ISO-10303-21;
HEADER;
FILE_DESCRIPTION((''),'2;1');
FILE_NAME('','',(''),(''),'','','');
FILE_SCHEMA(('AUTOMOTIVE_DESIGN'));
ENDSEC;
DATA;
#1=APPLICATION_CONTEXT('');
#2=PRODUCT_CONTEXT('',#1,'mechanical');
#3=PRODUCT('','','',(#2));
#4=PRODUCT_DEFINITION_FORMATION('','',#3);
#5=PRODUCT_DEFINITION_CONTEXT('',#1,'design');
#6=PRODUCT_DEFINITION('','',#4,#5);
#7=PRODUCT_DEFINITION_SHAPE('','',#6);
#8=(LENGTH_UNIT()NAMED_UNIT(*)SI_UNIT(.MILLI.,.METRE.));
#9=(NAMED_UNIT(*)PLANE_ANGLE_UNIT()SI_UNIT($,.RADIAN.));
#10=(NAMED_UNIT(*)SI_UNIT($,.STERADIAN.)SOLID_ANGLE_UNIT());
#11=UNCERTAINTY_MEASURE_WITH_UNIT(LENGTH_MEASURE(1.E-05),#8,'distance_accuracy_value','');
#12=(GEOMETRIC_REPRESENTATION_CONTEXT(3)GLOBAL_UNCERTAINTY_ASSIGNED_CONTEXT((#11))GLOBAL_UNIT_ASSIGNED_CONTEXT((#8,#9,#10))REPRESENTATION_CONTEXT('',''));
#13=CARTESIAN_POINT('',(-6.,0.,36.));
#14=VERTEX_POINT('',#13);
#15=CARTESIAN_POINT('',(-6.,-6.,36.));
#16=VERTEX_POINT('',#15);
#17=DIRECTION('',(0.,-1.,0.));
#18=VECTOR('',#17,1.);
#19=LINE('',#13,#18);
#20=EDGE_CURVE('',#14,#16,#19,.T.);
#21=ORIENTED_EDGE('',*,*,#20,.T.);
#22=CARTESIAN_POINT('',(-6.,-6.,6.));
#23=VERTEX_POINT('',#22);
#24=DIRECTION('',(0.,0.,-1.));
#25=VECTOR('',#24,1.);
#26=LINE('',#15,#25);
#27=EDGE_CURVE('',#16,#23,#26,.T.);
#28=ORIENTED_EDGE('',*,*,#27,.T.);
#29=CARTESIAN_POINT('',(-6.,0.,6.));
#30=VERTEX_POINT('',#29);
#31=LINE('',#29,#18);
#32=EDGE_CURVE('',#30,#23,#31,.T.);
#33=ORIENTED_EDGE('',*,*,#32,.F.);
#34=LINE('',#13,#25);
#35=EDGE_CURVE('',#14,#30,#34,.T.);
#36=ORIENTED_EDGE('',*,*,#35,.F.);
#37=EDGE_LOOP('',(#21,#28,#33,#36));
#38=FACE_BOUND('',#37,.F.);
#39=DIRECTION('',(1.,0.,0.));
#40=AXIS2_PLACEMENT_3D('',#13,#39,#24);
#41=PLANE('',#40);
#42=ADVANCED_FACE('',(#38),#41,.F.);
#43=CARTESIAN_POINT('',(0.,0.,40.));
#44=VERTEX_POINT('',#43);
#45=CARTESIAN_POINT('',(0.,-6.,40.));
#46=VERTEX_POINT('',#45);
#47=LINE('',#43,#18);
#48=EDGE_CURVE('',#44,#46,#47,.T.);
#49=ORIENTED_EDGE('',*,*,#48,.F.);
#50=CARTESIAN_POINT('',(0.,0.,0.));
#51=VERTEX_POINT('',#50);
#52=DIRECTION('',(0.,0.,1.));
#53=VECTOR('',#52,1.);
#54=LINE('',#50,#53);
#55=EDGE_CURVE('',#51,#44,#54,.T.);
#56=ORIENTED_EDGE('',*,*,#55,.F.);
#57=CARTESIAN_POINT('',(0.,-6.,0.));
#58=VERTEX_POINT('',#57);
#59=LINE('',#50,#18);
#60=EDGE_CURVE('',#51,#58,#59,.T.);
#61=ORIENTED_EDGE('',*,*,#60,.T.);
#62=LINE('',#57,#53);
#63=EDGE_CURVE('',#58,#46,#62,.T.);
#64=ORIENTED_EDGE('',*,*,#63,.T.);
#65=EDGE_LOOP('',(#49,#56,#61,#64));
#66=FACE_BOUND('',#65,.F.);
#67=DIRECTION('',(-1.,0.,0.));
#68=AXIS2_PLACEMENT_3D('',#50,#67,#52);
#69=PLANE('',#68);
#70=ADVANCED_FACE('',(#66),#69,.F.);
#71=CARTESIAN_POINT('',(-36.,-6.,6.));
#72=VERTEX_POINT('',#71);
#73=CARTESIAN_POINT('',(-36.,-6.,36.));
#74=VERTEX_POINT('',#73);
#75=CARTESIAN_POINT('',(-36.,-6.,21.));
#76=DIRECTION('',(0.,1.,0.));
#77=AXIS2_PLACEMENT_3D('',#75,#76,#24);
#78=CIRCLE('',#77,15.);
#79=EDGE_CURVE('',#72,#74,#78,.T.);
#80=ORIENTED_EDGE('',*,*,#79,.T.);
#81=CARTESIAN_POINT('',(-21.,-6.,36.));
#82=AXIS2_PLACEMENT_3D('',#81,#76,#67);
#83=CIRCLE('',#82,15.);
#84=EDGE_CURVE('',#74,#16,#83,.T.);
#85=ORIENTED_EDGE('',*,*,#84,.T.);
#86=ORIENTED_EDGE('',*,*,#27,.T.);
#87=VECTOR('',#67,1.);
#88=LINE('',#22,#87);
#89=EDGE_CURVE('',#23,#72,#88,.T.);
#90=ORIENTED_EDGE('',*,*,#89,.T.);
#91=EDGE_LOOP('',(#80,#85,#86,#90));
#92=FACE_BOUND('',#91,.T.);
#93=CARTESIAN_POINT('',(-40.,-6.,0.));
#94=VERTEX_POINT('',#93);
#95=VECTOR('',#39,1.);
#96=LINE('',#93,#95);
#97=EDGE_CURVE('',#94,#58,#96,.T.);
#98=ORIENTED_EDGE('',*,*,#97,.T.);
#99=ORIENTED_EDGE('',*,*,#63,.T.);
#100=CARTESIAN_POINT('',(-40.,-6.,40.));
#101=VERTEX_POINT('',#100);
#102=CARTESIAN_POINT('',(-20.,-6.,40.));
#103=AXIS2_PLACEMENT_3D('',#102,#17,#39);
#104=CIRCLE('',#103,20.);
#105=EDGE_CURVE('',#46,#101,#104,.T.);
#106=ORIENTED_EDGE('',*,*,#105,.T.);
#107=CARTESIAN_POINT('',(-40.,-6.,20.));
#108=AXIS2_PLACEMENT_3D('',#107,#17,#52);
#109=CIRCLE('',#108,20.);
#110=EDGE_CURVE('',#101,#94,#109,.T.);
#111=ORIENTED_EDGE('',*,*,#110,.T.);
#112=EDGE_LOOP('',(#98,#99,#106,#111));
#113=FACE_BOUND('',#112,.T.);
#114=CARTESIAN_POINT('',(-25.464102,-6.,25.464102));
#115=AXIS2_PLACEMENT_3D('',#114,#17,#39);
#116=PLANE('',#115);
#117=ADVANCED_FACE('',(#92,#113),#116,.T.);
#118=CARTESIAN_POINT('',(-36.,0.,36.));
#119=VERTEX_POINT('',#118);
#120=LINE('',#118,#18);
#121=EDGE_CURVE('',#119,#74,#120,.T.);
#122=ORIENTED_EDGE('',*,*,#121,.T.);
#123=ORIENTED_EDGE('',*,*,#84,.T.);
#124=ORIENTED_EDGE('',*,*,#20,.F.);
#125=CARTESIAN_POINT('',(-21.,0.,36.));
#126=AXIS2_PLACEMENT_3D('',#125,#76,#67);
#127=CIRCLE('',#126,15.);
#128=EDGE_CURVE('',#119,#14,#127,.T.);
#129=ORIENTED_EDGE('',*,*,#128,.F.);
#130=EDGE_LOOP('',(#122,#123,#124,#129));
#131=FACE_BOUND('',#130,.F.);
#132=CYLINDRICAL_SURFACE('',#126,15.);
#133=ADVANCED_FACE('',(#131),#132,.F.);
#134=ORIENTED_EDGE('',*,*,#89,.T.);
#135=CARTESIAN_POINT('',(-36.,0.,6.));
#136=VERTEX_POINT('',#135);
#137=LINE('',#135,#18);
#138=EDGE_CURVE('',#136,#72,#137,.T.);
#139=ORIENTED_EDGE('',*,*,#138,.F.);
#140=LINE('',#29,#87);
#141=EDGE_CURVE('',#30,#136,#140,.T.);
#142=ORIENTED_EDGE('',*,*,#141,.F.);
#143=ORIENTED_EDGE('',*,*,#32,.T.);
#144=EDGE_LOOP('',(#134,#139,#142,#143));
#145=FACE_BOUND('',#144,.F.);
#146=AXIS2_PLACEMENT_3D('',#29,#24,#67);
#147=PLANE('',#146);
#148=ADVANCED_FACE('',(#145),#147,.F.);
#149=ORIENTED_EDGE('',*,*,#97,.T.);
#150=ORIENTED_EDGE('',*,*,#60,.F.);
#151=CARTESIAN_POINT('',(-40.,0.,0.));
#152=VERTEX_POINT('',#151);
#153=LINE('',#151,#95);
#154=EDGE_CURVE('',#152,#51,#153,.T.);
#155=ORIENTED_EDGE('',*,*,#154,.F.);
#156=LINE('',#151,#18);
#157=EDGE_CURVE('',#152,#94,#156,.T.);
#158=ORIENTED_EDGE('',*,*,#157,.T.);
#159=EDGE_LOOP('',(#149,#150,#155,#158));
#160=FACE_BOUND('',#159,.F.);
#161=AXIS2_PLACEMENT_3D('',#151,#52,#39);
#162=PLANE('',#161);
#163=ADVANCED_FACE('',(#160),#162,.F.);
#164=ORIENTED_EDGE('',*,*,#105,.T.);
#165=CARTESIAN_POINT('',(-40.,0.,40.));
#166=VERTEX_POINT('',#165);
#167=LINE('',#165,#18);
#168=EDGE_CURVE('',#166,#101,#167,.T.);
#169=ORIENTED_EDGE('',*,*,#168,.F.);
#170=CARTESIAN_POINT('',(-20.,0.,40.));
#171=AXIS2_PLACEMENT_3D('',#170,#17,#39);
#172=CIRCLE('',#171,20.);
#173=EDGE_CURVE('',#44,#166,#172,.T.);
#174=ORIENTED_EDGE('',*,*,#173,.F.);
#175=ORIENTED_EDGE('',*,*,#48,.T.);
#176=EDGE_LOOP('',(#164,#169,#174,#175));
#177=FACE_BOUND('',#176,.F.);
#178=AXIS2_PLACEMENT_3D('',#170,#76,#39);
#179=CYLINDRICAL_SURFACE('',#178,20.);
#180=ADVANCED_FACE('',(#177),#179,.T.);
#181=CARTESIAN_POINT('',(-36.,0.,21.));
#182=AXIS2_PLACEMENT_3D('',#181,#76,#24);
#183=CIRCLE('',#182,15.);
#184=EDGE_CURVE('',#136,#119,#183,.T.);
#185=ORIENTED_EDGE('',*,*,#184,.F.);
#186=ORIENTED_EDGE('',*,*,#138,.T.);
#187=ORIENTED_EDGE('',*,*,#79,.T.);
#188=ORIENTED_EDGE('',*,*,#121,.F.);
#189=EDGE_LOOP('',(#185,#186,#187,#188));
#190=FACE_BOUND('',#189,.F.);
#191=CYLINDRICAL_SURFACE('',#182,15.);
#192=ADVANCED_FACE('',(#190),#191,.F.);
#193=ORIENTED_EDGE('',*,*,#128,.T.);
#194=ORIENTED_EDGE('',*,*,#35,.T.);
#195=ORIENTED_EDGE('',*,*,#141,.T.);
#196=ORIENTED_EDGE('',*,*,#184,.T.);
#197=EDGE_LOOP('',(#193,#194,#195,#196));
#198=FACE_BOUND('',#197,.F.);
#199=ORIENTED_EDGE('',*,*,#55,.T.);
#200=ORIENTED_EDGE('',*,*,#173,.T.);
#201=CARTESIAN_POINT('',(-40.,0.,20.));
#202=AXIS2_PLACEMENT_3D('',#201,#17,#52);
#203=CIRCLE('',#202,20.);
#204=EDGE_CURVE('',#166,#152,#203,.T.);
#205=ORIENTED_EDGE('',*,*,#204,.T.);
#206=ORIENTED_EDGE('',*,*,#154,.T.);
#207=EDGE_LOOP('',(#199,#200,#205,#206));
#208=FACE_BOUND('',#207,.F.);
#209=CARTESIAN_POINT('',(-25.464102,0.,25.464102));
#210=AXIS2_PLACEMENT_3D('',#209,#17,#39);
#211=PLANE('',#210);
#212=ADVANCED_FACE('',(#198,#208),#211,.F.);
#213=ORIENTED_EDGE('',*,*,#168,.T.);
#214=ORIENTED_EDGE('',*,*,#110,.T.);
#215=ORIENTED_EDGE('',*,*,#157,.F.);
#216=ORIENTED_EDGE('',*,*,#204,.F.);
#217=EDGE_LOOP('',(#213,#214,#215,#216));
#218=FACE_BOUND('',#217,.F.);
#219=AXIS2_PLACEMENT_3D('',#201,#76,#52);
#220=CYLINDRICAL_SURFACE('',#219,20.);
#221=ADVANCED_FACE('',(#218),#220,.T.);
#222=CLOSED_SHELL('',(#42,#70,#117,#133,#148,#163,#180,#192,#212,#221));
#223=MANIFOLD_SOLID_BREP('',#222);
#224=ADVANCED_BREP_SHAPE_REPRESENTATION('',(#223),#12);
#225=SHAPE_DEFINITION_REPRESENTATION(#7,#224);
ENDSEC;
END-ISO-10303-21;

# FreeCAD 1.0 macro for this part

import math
import FreeCAD as App
import Part
import Sketcher
from FreeCAD import Vector

doc = App.newDocument("Part")
body = doc.addObject("PartDesign::Body", "Body")

sketch1 = body.newObject("Sketcher::SketchObject", "Sketch")
sketch1.AttachmentSupport = (doc.getObject("XZ_Plane"), [""])
sketch1.MapMode = "FlatFace"
sketch1.addGeometry([
    Part.LineSegment(Vector(-40, 0, 0), Vector(0, 0, 0)),
    Part.LineSegment(Vector(0, 0, 0), Vector(0, 40, 0)),
    Part.ArcOfCircle(Part.Circle(Vector(-20, 40, 0), Vector(0, 0, 1), 20), math.radians(0), math.radians(180)),
    Part.ArcOfCircle(Part.Circle(Vector(-40, 20, 0), Vector(0, 0, 1), 20), math.radians(90), math.radians(270)),
    Part.LineSegment(Vector(-6, 36, 0), Vector(-6, 6, 0)),
    Part.LineSegment(Vector(-6, 6, 0), Vector(-36, 6, 0)),
    Part.ArcOfCircle(Part.Circle(Vector(-36, 21, 0), Vector(0, 0, 1), 15), math.radians(90), math.radians(270)),
    Part.ArcOfCircle(Part.Circle(Vector(-21, 36, 0), Vector(0, 0, 1), 15), math.radians(0), math.radians(180)),
], False)
sketch1.addConstraint([
    Sketcher.Constraint("Coincident", 0, 2, 1, 1),
    Sketcher.Constraint("Tangent", 1, 2, 2, 1),
    Sketcher.Constraint("Coincident", 2, 2, 3, 1),
    Sketcher.Constraint("Tangent", 3, 2, 0, 1),
    Sketcher.Constraint("Coincident", 4, 2, 5, 1),
    Sketcher.Constraint("Tangent", 5, 2, 6, 2),
    Sketcher.Constraint("Coincident", 6, 1, 7, 2),
    Sketcher.Constraint("Tangent", 7, 1, 4, 1),
    Sketcher.Constraint("Horizontal", 0),
    Sketcher.Constraint("Vertical", 1),
    Sketcher.Constraint("Vertical", 4),
    Sketcher.Constraint("Horizontal", 5),
    Sketcher.Constraint("Coincident", 0, 2, -1, 1),
    Sketcher.Constraint("Equal", 2, 3),
    Sketcher.Constraint("Equal", 6, 7),
    Sketcher.Constraint("Horizontal", 1, 2, 2, 2),
    Sketcher.Constraint("Horizontal", 7, 3, 6, 1),
    Sketcher.Constraint("Vertical", 3, 3, 2, 2),
    Sketcher.Constraint("Vertical", 5, 2, 6, 1),
    Sketcher.Constraint("Radius", 2, 20.0),
    Sketcher.Constraint("Radius", 6, 15.0),
    Sketcher.Constraint("DistanceX", 6, 3, -1, 1, 36.0),
    Sketcher.Constraint("DistanceY", -1, 1, 6, 3, 21.0),
])
pad1 = body.newObject("PartDesign::Pad", "Pad")
pad1.Profile = sketch1
pad1.Length = 6

doc.recompute()
